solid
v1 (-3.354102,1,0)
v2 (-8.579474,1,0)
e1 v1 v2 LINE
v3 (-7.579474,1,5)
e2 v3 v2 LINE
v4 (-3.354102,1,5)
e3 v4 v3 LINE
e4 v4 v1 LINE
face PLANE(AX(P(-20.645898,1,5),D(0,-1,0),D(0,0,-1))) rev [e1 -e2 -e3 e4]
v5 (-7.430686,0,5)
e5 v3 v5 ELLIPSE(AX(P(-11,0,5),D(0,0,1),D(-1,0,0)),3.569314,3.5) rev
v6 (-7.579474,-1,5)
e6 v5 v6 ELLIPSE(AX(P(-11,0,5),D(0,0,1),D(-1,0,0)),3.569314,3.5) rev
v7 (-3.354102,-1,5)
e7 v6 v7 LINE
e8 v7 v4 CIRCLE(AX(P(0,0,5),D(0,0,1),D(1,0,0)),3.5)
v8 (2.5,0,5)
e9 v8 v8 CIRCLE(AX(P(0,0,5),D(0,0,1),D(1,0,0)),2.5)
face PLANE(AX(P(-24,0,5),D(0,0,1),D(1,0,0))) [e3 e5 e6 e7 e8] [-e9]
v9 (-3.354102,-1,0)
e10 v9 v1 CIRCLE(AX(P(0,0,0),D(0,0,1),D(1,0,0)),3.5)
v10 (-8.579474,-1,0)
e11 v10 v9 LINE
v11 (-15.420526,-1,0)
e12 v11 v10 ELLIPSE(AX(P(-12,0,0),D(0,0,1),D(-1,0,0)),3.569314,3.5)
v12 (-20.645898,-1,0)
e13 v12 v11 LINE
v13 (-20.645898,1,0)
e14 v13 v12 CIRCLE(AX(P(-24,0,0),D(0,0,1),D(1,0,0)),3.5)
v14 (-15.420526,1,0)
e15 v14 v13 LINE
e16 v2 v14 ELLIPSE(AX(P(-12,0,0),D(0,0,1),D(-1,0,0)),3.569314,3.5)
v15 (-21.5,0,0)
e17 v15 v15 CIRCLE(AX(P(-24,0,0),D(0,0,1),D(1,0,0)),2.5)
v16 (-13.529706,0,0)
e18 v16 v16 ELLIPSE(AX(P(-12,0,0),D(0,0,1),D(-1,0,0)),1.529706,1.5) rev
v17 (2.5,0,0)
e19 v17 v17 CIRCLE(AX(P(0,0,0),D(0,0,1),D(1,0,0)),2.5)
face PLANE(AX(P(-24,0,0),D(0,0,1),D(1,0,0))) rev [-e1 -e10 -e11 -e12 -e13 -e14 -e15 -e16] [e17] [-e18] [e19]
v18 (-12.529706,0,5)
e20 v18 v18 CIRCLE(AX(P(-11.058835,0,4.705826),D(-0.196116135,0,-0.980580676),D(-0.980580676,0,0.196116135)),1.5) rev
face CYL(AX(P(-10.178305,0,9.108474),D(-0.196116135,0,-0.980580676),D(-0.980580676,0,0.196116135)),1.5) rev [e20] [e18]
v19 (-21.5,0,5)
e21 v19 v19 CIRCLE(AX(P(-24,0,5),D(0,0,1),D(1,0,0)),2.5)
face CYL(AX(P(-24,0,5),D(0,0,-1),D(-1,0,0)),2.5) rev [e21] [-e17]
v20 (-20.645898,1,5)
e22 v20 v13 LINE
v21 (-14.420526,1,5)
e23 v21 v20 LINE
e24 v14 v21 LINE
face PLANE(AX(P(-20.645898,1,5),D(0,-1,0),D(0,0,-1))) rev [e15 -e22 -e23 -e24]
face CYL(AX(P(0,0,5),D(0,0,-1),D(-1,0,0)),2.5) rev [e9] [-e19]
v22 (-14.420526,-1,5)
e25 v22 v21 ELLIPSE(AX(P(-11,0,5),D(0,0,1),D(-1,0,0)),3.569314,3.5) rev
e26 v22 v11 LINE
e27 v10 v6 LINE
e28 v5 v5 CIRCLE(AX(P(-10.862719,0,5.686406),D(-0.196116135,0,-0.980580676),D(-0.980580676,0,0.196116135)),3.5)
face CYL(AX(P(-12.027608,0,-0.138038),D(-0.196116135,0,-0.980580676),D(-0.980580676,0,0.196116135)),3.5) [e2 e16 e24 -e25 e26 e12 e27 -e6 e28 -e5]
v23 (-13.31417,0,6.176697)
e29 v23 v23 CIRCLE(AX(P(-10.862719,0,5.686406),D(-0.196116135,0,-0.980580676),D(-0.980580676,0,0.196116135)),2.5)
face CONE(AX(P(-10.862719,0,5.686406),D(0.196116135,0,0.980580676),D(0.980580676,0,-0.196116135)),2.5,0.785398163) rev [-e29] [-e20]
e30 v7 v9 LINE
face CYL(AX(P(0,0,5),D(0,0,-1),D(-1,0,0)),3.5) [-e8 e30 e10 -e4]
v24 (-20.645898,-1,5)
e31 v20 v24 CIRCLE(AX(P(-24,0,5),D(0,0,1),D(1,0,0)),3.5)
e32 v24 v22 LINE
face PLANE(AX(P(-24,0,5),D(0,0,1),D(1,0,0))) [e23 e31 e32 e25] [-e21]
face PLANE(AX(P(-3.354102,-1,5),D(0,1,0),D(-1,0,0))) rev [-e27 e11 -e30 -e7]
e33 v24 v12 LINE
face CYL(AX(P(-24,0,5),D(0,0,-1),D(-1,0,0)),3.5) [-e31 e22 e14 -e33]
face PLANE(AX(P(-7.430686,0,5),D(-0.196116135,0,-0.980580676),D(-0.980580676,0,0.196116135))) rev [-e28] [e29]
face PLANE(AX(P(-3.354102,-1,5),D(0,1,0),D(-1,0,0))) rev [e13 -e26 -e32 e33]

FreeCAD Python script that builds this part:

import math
import FreeCAD as App
import Part
import Sketcher
from FreeCAD import Vector
Q = App.Units.Quantity


def edges_at(feature, points):
    """Names of the edges that pass closest to the given points."""
    edges = feature.Shape.Edges
    near = lambda p: min(range(len(edges)), key=lambda i: edges[i].distToShape(Part.Vertex(*p))[0])
    return sorted({f"Edge{near(p) + 1}" for p in points})


def add_polygon(sketch, points):
    """Adds a closed chain of lines whose ends are joined by coincident constraints."""
    first, n = sketch.GeometryCount, len(points)
    for a, b in zip(points, points[1:] + points[:1]):
        sketch.addGeometry(Part.LineSegment(App.Vector(*a, 0), App.Vector(*b, 0)), False)
    for i in range(n):
        sketch.addConstraint(Sketcher.Constraint("Coincident", first + i, 2, first + (i + 1) % n, 1))

doc = App.newDocument("Part")
body = doc.addObject("PartDesign::Body", "Body")

# Sketch on XY plane
sketch1 = doc.addObject("Sketcher::SketchObject", "Sketch")
body.addObject(sketch1)
sketch1.AttachmentSupport = (doc.XY_Plane, [""])
sketch1.MapMode = "FlatFace"
sketch1.addGeometry(Part.LineSegment(Vector(-3.4, 1, 0), Vector(-20.6, 1, 0)), False)
sketch1.addGeometry(Part.ArcOfCircle(Part.Circle(Vector(-24, 0, 0), Vector(0, 0, 1), 3.5), math.radians(17), math.radians(343)), False)
sketch1.addGeometry(Part.LineSegment(Vector(-20.6, -1, 0), Vector(-3.4, -1, 0)), False)
sketch1.addGeometry(Part.ArcOfCircle(Part.Circle(Vector(0, 0, 0), Vector(0, 0, 1), 3.5), math.radians(-163), math.radians(163)), False)
sketch1.addGeometry(Part.Circle(Vector(0, 0, 0), Vector(0, 0, 1), 2.5), False)
sketch1.addGeometry(Part.Circle(Vector(-24, 0, 0), Vector(0, 0, 1), 2.5), False)
sketch1.addConstraint(Sketcher.Constraint("Coincident", 0, 2, 1, 1))
sketch1.addConstraint(Sketcher.Constraint("Coincident", 1, 2, 2, 1))
sketch1.addConstraint(Sketcher.Constraint("Coincident", 2, 2, 3, 1))
sketch1.addConstraint(Sketcher.Constraint("Coincident", 3, 2, 0, 1))
sketch1.addConstraint(Sketcher.Constraint("Horizontal", 0))
sketch1.addConstraint(Sketcher.Constraint("Horizontal", 2))
sketch1.addConstraint(Sketcher.Constraint("Coincident", 3, 3, -1, 1))
sketch1.addConstraint(Sketcher.Constraint("Coincident", 4, 3, -1, 1))
sketch1.addConstraint(Sketcher.Constraint("Coincident", 5, 3, 1, 3))
sketch1.addConstraint(Sketcher.Constraint("Equal", 1, 3))
sketch1.addConstraint(Sketcher.Constraint("Equal", 4, 5))
sketch1.addConstraint(Sketcher.Constraint("Symmetric", 0, 2, 1, 2, -1))
sketch1.addConstraint(Sketcher.Constraint("Diameter", 4, Q("5 mm")))
sketch1.addConstraint(Sketcher.Constraint("Radius", 1, Q("3.5 mm")))
sketch1.addConstraint(Sketcher.Constraint("DistanceX", 1, 3, -1, 1, Q("24 mm")))
sketch1.addConstraint(Sketcher.Constraint("DistanceY", -1, 1, 0, 2, Q("1 mm")))
pad1 = doc.addObject("PartDesign::Pad", "Pad")
body.addObject(pad1)
pad1.Profile = sketch1
pad1.Length = 5

# Sketch on XZ plane
sketch2 = doc.addObject("Sketcher::SketchObject", "Sketch001")
body.addObject(sketch2)
sketch2.AttachmentSupport = (doc.XZ_Plane, [""])
sketch2.MapMode = "FlatFace"
add_polygon(sketch2, [(-7.4, 5), (-8.7, -1.4), (-12.1, -0.7), (-10.9, 5.7)])  # lines 0-3
sketch2.addGeometry(Part.LineSegment(Vector(-12.1, -0.7, 0), Vector(-10.9, 5.7, 0)), True)  # axis
sketch2.addConstraint(Sketcher.Constraint("Coincident", 4, 1, 1, 2))
sketch2.addConstraint(Sketcher.Constraint("Coincident", 4, 2, 2, 2))
sketch2.addConstraint(Sketcher.Constraint("Perpendicular", 0, 1))
sketch2.addConstraint(Sketcher.Constraint("Perpendicular", 1, 2))
sketch2.addConstraint(Sketcher.Constraint("Perpendicular", 2, 3))
sketch2.addConstraint(Sketcher.Constraint("DistanceY", -1, 1, 3, 2, Q("5 mm")))
sketch2.addConstraint(Sketcher.Constraint("Distance", 1, Q("3.5 mm")))
sketch2.addConstraint(Sketcher.Constraint("Distance", 0, Q("6.49902 mm")))
sketch2.addConstraint(Sketcher.Constraint("DistanceX", 0, 2, -1, 1, Q("8.705249 mm")))
sketch2.addConstraint(Sketcher.Constraint("DistanceX", 1, 2, -1, 1, Q("12.137281 mm")))
revolution = doc.addObject("PartDesign::Revolution", "Revolution")
body.addObject(revolution)
revolution.Profile = sketch2
revolution.ReferenceAxis = (sketch2, ["Axis0"])
revolution.Angle = 360

# Sketch on an angled plane
sketch3 = doc.addObject("Sketcher::SketchObject", "Sketch002")
body.addObject(sketch3)
sketch3.Placement = App.Placement(Vector(-0.59882, 0, -2.994099), App.Rotation(Vector(-0.980580676, 0, 0.196116135), Vector(0, 1.000000001, 0), Vector(-0.196116135, 0, -0.980580676), "ZXY"))
sketch3.addGeometry(Part.Circle(Vector(11.8, 0, 0), Vector(0, 0, 1), 1.5), False)
sketch3.addConstraint(Sketcher.Constraint("PointOnObject", 0, 3, -1))
sketch3.addConstraint(Sketcher.Constraint("Diameter", 0, Q("3 mm")))
sketch3.addConstraint(Sketcher.Constraint("DistanceX", -1, 1, 0, 3, Q("11.766968 mm")))
pocket1 = doc.addObject("PartDesign::Pocket", "Pocket")
body.addObject(pocket1)
pocket1.Profile = sketch3
pocket1.Type = "ThroughAll"

# Sketch on XZ plane
sketch4 = doc.addObject("Sketcher::SketchObject", "Sketch003")
body.addObject(sketch4)
sketch4.AttachmentSupport = (doc.XZ_Plane, [""])
sketch4.MapMode = "FlatFace"
add_polygon(sketch4, [(-17.5, -3.7), (-17.5, 0), (-6.8, 0), (-6.8, -3.7)])  # lines 0-3
sketch4.addConstraint(Sketcher.Constraint("Vertical", 0))
sketch4.addConstraint(Sketcher.Constraint("Horizontal", 1))
sketch4.addConstraint(Sketcher.Constraint("Vertical", 2))
sketch4.addConstraint(Sketcher.Constraint("Horizontal", 3))
sketch4.addConstraint(Sketcher.Constraint("PointOnObject", 0, 2, -1))
sketch4.addConstraint(Sketcher.Constraint("DistanceX", 1, 1, 1, 2, Q("10.682768 mm")))
sketch4.addConstraint(Sketcher.Constraint("DistanceY", 0, 1, 0, 2, Q("3.673974 mm")))
sketch4.addConstraint(Sketcher.Constraint("DistanceX", 0, 2, -1, 1, Q("17.495093 mm")))
pocket2 = doc.addObject("PartDesign::Pocket", "Pocket001")
body.addObject(pocket2)
pocket2.Profile = sketch4
pocket2.Type = "ThroughAll"
pocket2.Midplane = True
doc.recompute()

chamfer = doc.addObject("PartDesign::Chamfer", "Chamfer")
body.addObject(chamfer)
chamfer.Base = (pocket2, edges_at(pocket2, [(-9.392, 0, 5.392)]))
chamfer.Size = 1

doc.recompute()
